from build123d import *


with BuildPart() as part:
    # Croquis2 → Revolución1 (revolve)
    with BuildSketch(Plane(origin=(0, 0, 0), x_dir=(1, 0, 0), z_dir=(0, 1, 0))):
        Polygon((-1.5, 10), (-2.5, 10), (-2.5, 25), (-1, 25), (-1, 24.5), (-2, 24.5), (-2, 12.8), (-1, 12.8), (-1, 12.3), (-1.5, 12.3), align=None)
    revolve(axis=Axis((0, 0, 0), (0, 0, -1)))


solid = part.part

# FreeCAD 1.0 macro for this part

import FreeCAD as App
import Part
import Sketcher

V = App.Vector
Q = App.Units.Quantity

doc = App.newDocument("Part")
params = doc.addObject("Spreadsheet::Sheet", "Params")
for row, (alias, value) in enumerate([
    ("sketch1_width", "1 mm"),
    ("sketch1_height", "15 mm"),
    ("sketch1_width2", "0.5 mm"),
    ("sketch1_height2", "2.3 mm"),
    ("revolution_angle", "360 deg"),
], start=1):
    params.set(f"A{row}", alias)
    params.set(f"B{row}", "=" + value)
    params.setAlias(f"B{row}", alias)

body = doc.addObject("PartDesign::Body", "Body")

# Sketch on XZ plane
sketch1 = body.newObject("Sketcher::SketchObject", "Sketch")
sketch1.AttachmentSupport = (doc.getObject("XZ_Plane"), [""])
sketch1.MapMode = "FlatFace"
sketch1.addGeometry([
    Part.LineSegment(V(-2.5, -10, 0), V(-1.5, -10, 0)),  # 0
    Part.LineSegment(V(-1.5, -10, 0), V(-1.5, -12.3, 0)),  # 1
    Part.LineSegment(V(-1.5, -12.3, 0), V(-1, -12.3, 0)),  # 2
    Part.LineSegment(V(-1, -12.3, 0), V(-1, -12.8, 0)),  # 3
    Part.LineSegment(V(-1, -12.8, 0), V(-2, -12.8, 0)),  # 4
    Part.LineSegment(V(-2, -12.8, 0), V(-2, -24.5, 0)),  # 5
    Part.LineSegment(V(-2, -24.5, 0), V(-1, -24.5, 0)),  # 6
    Part.LineSegment(V(-1, -24.5, 0), V(-1, -25, 0)),  # 7
    Part.LineSegment(V(-1, -25, 0), V(-2.5, -25, 0)),  # 8
    Part.LineSegment(V(-2.5, -25, 0), V(-2.5, -10, 0)),  # 9
], False)
sketch1.addConstraint([
    Sketcher.Constraint("Coincident", 0, 2, 1, 1),
    Sketcher.Constraint("Coincident", 1, 2, 2, 1),
    Sketcher.Constraint("Coincident", 2, 2, 3, 1),
    Sketcher.Constraint("Coincident", 3, 2, 4, 1),
    Sketcher.Constraint("Coincident", 4, 2, 5, 1),
    Sketcher.Constraint("Coincident", 5, 2, 6, 1),
    Sketcher.Constraint("Coincident", 6, 2, 7, 1),
    Sketcher.Constraint("Coincident", 7, 2, 8, 1),
    Sketcher.Constraint("Coincident", 8, 2, 9, 1),
    Sketcher.Constraint("Coincident", 9, 2, 0, 1),
    Sketcher.Constraint("Horizontal", 0),
    Sketcher.Constraint("Vertical", 1),
    Sketcher.Constraint("Horizontal", 2),
    Sketcher.Constraint("Vertical", 3),
    Sketcher.Constraint("Horizontal", 4),
    Sketcher.Constraint("Vertical", 5),
    Sketcher.Constraint("Horizontal", 6),
    Sketcher.Constraint("Vertical", 7),
    Sketcher.Constraint("Horizontal", 8),
    Sketcher.Constraint("Vertical", 9),
    Sketcher.Constraint("Vertical", 3, 2, 6, 2),
    Sketcher.Constraint("Equal", 0, 4),
    Sketcher.Constraint("Equal", 2, 3),
    Sketcher.Constraint("Equal", 3, 7),
    Sketcher.Constraint("DistanceX", 0, 1, 0, 2, Q("1 mm")),
    Sketcher.Constraint("DistanceY", 9, 1, 9, 2, Q("15 mm")),
    Sketcher.Constraint("DistanceX", 2, 1, 2, 2, Q("0.5 mm")),
    Sketcher.Constraint("DistanceY", 1, 2, 1, 1, Q("2.3 mm")),
    Sketcher.Constraint("DistanceY", 0, 2, -1, 1, Q("10 mm")),
    Sketcher.Constraint("DistanceX", 2, 2, -1, 1, Q("1 mm")),
])
sketch1.setExpression("Constraints[24]", "Params.sketch1_width")
sketch1.setExpression("Constraints[25]", "Params.sketch1_height")
sketch1.setExpression("Constraints[26]", "Params.sketch1_width2")
sketch1.setExpression("Constraints[27]", "Params.sketch1_height2")
revolution = body.newObject("PartDesign::Revolution", "Revolution")
revolution.Profile = sketch1
revolution.ReferenceAxis = (sketch1, ["V_Axis"])
revolution.setExpression("Angle", "Params.revolution_angle")

doc.recompute()
